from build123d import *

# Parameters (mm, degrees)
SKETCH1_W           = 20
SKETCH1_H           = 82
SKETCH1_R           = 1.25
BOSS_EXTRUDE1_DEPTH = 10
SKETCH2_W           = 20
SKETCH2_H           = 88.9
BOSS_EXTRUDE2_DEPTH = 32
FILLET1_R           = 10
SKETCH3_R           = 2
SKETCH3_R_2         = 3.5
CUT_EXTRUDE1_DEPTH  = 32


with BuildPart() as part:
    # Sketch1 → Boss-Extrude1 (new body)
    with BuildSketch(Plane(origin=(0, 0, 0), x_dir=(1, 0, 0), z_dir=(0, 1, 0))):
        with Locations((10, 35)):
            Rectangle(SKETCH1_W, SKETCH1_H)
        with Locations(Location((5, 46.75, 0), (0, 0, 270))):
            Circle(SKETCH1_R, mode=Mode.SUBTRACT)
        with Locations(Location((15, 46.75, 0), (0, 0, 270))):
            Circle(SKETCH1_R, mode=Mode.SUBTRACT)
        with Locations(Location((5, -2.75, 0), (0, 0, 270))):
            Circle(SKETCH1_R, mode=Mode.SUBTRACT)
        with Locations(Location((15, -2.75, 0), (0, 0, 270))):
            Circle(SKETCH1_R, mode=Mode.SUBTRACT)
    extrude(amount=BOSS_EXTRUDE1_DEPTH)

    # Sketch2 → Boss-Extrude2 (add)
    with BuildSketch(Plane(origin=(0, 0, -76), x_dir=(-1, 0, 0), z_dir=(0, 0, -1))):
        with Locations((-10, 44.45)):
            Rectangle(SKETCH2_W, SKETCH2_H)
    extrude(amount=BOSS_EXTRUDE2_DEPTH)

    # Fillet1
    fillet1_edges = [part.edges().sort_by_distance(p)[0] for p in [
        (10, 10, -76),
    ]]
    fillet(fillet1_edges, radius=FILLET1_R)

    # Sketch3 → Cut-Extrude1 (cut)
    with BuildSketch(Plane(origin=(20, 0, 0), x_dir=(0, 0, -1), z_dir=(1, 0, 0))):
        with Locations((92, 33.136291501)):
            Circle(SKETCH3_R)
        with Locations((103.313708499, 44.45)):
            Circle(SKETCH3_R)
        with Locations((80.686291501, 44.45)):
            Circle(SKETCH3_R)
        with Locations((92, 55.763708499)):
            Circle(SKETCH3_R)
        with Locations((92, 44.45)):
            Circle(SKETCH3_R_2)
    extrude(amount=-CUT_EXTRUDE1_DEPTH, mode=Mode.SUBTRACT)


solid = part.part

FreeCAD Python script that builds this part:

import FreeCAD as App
import Part
import Sketcher
from FreeCAD import Vector


def edges_at(feature, points):
    """Names of the edges that pass closest to the given points."""
    edges = feature.Shape.Edges
    near = lambda p: min(range(len(edges)), key=lambda i: edges[i].distToShape(Part.Vertex(*p))[0])
    return sorted({f"Edge{near(p) + 1}" for p in points})


def add_polygon(sketch, points):
    """Adds a closed chain of lines whose ends are joined by coincident constraints."""
    first, n = sketch.GeometryCount, len(points)
    for a, b in zip(points, points[1:] + points[:1]):
        sketch.addGeometry(Part.LineSegment(App.Vector(*a, 0), App.Vector(*b, 0)), False)
    for i in range(n):
        sketch.addConstraint(Sketcher.Constraint("Coincident", first + i, 2, first + (i + 1) % n, 1))

doc = App.newDocument("Part")
body = doc.addObject("PartDesign::Body", "Body")

# Sketch on XZ plane
sketch1 = body.newObject("Sketcher::SketchObject", "Sketch")
sketch1.AttachmentSupport = (doc.getObject("XZ_Plane"), [""])
sketch1.MapMode = "FlatFace"
add_polygon(sketch1, [(0, -76), (0, 6), (20, 6), (20, -76)])  # lines 0-3
sketch1.addGeometry(Part.Circle(Vector(5, 2.8, 0), Vector(0, 0, 1), 1.2), False)  # 4
sketch1.addGeometry(Part.Circle(Vector(15, 2.8, 0), Vector(0, 0, 1), 1.2), False)  # 5
sketch1.addGeometry(Part.Circle(Vector(5, -46.8, 0), Vector(0, 0, 1), 1.2), False)  # 6
sketch1.addGeometry(Part.Circle(Vector(15, -46.8, 0), Vector(0, 0, 1), 1.2), False)  # 7
sketch1.addConstraint(Sketcher.Constraint("Vertical", 0))
sketch1.addConstraint(Sketcher.Constraint("Horizontal", 1))
sketch1.addConstraint(Sketcher.Constraint("Vertical", 2))
sketch1.addConstraint(Sketcher.Constraint("Horizontal", 3))
sketch1.addConstraint(Sketcher.Constraint("Equal", 4, 5))
sketch1.addConstraint(Sketcher.Constraint("Equal", 5, 6))
sketch1.addConstraint(Sketcher.Constraint("Equal", 6, 7))
sketch1.addConstraint(Sketcher.Constraint("PointOnObject", 0, 2, -2))
sketch1.addConstraint(Sketcher.Constraint("Horizontal", 4, 3, 5, 3))
sketch1.addConstraint(Sketcher.Constraint("Horizontal", 6, 3, 7, 3))
sketch1.addConstraint(Sketcher.Constraint("Vertical", 4, 3, 6, 3))
sketch1.addConstraint(Sketcher.Constraint("Vertical", 5, 3, 7, 3))
sketch1.addConstraint(Sketcher.Constraint("Diameter", 4, 2.5))
sketch1.addConstraint(Sketcher.Constraint("DistanceX", 1, 1, 1, 2, 20.0))
sketch1.addConstraint(Sketcher.Constraint("DistanceY", 0, 1, 0, 2, 82.0))
sketch1.addConstraint(Sketcher.Constraint("DistanceX", -1, 1, 4, 3, 5.0))
sketch1.addConstraint(Sketcher.Constraint("DistanceX", -1, 1, 5, 3, 15.0))
sketch1.addConstraint(Sketcher.Constraint("DistanceY", -1, 1, 0, 2, 6.0))
sketch1.addConstraint(Sketcher.Constraint("DistanceY", 6, 3, 4, 3, 49.5))
sketch1.addConstraint(Sketcher.Constraint("DistanceY", -1, 1, 4, 3, 2.75))
pad1 = body.newObject("PartDesign::Pad", "Pad")
pad1.Profile = sketch1
pad1.Length = 10
pad1.Reversed = True

# Sketch on XY plane
sketch2 = body.newObject("Sketcher::SketchObject", "Sketch001")
sketch2.AttachmentSupport = (doc.getObject("XY_Plane"), [""])
sketch2.MapMode = "FlatFace"
sketch2.AttachmentOffset = App.Placement(Vector(0, 0, -76), App.Rotation())
add_polygon(sketch2, [(20, 89), (20, 0), (0, 0), (0, 89)])  # lines 0-3
sketch2.addConstraint(Sketcher.Constraint("Vertical", 0))
sketch2.addConstraint(Sketcher.Constraint("Horizontal", 1))
sketch2.addConstraint(Sketcher.Constraint("Vertical", 2))
sketch2.addConstraint(Sketcher.Constraint("Horizontal", 3))
sketch2.addConstraint(Sketcher.Constraint("Coincident", 1, 2, -1, 1))
sketch2.addConstraint(Sketcher.Constraint("DistanceX", 1, 2, 1, 1, 20.0))
sketch2.addConstraint(Sketcher.Constraint("DistanceY", 0, 2, 0, 1, 88.9))
pad2 = body.newObject("PartDesign::Pad", "Pad001")
pad2.Profile = sketch2
pad2.Length = 32
pad2.Reversed = True
doc.recompute()

fillet = body.newObject("PartDesign::Fillet", "Fillet")
fillet.Base = (pad2, edges_at(pad2, [(10, 10, -76)]))
fillet.Radius = 10

# Sketch on YZ plane
sketch3 = body.newObject("Sketcher::SketchObject", "Sketch002")
sketch3.AttachmentSupport = (doc.getObject("YZ_Plane"), [""])
sketch3.MapMode = "FlatFace"
sketch3.AttachmentOffset = App.Placement(Vector(0, 0, 20), App.Rotation())
sketch3.addGeometry(Part.Circle(Vector(33.1, -92, 0), Vector(0, 0, 1), 2), False)
sketch3.addGeometry(Part.Circle(Vector(44.5, -103.3, 0), Vector(0, 0, 1), 2), False)
sketch3.addGeometry(Part.Circle(Vector(44.5, -80.7, 0), Vector(0, 0, 1), 2), False)
sketch3.addGeometry(Part.Circle(Vector(55.8, -92, 0), Vector(0, 0, 1), 2), False)
sketch3.addGeometry(Part.Circle(Vector(44.5, -92, 0), Vector(0, 0, 1), 3.5), False)
sketch3.addConstraint(Sketcher.Constraint("Equal", 0, 1))
sketch3.addConstraint(Sketcher.Constraint("Equal", 1, 2))
sketch3.addConstraint(Sketcher.Constraint("Equal", 2, 3))
sketch3.addConstraint(Sketcher.Constraint("Horizontal", 0, 3, 3, 3))
sketch3.addConstraint(Sketcher.Constraint("Horizontal", 3, 3, 4, 3))
sketch3.addConstraint(Sketcher.Constraint("Vertical", 1, 3, 2, 3))
sketch3.addConstraint(Sketcher.Constraint("Vertical", 2, 3, 4, 3))
sketch3.addConstraint(Sketcher.Constraint("Diameter", 0, 4.0))
sketch3.addConstraint(Sketcher.Constraint("Diameter", 4, 7.0))
sketch3.addConstraint(Sketcher.Constraint("DistanceY", 0, 3, -1, 1, 92.0))
sketch3.addConstraint(Sketcher.Constraint("DistanceX", -1, 1, 1, 3, 44.45))
sketch3.addConstraint(Sketcher.Constraint("DistanceX", -1, 1, 0, 3, 33.136292))
sketch3.addConstraint(Sketcher.Constraint("DistanceY", 1, 3, -1, 1, 103.313708))
sketch3.addConstraint(Sketcher.Constraint("DistanceY", 2, 3, -1, 1, 80.686292))
sketch3.addConstraint(Sketcher.Constraint("DistanceX", -1, 1, 3, 3, 55.763708))
pocket1 = body.newObject("PartDesign::Pocket", "Pocket")
pocket1.Profile = sketch3
pocket1.Length = 32

doc.recompute()
